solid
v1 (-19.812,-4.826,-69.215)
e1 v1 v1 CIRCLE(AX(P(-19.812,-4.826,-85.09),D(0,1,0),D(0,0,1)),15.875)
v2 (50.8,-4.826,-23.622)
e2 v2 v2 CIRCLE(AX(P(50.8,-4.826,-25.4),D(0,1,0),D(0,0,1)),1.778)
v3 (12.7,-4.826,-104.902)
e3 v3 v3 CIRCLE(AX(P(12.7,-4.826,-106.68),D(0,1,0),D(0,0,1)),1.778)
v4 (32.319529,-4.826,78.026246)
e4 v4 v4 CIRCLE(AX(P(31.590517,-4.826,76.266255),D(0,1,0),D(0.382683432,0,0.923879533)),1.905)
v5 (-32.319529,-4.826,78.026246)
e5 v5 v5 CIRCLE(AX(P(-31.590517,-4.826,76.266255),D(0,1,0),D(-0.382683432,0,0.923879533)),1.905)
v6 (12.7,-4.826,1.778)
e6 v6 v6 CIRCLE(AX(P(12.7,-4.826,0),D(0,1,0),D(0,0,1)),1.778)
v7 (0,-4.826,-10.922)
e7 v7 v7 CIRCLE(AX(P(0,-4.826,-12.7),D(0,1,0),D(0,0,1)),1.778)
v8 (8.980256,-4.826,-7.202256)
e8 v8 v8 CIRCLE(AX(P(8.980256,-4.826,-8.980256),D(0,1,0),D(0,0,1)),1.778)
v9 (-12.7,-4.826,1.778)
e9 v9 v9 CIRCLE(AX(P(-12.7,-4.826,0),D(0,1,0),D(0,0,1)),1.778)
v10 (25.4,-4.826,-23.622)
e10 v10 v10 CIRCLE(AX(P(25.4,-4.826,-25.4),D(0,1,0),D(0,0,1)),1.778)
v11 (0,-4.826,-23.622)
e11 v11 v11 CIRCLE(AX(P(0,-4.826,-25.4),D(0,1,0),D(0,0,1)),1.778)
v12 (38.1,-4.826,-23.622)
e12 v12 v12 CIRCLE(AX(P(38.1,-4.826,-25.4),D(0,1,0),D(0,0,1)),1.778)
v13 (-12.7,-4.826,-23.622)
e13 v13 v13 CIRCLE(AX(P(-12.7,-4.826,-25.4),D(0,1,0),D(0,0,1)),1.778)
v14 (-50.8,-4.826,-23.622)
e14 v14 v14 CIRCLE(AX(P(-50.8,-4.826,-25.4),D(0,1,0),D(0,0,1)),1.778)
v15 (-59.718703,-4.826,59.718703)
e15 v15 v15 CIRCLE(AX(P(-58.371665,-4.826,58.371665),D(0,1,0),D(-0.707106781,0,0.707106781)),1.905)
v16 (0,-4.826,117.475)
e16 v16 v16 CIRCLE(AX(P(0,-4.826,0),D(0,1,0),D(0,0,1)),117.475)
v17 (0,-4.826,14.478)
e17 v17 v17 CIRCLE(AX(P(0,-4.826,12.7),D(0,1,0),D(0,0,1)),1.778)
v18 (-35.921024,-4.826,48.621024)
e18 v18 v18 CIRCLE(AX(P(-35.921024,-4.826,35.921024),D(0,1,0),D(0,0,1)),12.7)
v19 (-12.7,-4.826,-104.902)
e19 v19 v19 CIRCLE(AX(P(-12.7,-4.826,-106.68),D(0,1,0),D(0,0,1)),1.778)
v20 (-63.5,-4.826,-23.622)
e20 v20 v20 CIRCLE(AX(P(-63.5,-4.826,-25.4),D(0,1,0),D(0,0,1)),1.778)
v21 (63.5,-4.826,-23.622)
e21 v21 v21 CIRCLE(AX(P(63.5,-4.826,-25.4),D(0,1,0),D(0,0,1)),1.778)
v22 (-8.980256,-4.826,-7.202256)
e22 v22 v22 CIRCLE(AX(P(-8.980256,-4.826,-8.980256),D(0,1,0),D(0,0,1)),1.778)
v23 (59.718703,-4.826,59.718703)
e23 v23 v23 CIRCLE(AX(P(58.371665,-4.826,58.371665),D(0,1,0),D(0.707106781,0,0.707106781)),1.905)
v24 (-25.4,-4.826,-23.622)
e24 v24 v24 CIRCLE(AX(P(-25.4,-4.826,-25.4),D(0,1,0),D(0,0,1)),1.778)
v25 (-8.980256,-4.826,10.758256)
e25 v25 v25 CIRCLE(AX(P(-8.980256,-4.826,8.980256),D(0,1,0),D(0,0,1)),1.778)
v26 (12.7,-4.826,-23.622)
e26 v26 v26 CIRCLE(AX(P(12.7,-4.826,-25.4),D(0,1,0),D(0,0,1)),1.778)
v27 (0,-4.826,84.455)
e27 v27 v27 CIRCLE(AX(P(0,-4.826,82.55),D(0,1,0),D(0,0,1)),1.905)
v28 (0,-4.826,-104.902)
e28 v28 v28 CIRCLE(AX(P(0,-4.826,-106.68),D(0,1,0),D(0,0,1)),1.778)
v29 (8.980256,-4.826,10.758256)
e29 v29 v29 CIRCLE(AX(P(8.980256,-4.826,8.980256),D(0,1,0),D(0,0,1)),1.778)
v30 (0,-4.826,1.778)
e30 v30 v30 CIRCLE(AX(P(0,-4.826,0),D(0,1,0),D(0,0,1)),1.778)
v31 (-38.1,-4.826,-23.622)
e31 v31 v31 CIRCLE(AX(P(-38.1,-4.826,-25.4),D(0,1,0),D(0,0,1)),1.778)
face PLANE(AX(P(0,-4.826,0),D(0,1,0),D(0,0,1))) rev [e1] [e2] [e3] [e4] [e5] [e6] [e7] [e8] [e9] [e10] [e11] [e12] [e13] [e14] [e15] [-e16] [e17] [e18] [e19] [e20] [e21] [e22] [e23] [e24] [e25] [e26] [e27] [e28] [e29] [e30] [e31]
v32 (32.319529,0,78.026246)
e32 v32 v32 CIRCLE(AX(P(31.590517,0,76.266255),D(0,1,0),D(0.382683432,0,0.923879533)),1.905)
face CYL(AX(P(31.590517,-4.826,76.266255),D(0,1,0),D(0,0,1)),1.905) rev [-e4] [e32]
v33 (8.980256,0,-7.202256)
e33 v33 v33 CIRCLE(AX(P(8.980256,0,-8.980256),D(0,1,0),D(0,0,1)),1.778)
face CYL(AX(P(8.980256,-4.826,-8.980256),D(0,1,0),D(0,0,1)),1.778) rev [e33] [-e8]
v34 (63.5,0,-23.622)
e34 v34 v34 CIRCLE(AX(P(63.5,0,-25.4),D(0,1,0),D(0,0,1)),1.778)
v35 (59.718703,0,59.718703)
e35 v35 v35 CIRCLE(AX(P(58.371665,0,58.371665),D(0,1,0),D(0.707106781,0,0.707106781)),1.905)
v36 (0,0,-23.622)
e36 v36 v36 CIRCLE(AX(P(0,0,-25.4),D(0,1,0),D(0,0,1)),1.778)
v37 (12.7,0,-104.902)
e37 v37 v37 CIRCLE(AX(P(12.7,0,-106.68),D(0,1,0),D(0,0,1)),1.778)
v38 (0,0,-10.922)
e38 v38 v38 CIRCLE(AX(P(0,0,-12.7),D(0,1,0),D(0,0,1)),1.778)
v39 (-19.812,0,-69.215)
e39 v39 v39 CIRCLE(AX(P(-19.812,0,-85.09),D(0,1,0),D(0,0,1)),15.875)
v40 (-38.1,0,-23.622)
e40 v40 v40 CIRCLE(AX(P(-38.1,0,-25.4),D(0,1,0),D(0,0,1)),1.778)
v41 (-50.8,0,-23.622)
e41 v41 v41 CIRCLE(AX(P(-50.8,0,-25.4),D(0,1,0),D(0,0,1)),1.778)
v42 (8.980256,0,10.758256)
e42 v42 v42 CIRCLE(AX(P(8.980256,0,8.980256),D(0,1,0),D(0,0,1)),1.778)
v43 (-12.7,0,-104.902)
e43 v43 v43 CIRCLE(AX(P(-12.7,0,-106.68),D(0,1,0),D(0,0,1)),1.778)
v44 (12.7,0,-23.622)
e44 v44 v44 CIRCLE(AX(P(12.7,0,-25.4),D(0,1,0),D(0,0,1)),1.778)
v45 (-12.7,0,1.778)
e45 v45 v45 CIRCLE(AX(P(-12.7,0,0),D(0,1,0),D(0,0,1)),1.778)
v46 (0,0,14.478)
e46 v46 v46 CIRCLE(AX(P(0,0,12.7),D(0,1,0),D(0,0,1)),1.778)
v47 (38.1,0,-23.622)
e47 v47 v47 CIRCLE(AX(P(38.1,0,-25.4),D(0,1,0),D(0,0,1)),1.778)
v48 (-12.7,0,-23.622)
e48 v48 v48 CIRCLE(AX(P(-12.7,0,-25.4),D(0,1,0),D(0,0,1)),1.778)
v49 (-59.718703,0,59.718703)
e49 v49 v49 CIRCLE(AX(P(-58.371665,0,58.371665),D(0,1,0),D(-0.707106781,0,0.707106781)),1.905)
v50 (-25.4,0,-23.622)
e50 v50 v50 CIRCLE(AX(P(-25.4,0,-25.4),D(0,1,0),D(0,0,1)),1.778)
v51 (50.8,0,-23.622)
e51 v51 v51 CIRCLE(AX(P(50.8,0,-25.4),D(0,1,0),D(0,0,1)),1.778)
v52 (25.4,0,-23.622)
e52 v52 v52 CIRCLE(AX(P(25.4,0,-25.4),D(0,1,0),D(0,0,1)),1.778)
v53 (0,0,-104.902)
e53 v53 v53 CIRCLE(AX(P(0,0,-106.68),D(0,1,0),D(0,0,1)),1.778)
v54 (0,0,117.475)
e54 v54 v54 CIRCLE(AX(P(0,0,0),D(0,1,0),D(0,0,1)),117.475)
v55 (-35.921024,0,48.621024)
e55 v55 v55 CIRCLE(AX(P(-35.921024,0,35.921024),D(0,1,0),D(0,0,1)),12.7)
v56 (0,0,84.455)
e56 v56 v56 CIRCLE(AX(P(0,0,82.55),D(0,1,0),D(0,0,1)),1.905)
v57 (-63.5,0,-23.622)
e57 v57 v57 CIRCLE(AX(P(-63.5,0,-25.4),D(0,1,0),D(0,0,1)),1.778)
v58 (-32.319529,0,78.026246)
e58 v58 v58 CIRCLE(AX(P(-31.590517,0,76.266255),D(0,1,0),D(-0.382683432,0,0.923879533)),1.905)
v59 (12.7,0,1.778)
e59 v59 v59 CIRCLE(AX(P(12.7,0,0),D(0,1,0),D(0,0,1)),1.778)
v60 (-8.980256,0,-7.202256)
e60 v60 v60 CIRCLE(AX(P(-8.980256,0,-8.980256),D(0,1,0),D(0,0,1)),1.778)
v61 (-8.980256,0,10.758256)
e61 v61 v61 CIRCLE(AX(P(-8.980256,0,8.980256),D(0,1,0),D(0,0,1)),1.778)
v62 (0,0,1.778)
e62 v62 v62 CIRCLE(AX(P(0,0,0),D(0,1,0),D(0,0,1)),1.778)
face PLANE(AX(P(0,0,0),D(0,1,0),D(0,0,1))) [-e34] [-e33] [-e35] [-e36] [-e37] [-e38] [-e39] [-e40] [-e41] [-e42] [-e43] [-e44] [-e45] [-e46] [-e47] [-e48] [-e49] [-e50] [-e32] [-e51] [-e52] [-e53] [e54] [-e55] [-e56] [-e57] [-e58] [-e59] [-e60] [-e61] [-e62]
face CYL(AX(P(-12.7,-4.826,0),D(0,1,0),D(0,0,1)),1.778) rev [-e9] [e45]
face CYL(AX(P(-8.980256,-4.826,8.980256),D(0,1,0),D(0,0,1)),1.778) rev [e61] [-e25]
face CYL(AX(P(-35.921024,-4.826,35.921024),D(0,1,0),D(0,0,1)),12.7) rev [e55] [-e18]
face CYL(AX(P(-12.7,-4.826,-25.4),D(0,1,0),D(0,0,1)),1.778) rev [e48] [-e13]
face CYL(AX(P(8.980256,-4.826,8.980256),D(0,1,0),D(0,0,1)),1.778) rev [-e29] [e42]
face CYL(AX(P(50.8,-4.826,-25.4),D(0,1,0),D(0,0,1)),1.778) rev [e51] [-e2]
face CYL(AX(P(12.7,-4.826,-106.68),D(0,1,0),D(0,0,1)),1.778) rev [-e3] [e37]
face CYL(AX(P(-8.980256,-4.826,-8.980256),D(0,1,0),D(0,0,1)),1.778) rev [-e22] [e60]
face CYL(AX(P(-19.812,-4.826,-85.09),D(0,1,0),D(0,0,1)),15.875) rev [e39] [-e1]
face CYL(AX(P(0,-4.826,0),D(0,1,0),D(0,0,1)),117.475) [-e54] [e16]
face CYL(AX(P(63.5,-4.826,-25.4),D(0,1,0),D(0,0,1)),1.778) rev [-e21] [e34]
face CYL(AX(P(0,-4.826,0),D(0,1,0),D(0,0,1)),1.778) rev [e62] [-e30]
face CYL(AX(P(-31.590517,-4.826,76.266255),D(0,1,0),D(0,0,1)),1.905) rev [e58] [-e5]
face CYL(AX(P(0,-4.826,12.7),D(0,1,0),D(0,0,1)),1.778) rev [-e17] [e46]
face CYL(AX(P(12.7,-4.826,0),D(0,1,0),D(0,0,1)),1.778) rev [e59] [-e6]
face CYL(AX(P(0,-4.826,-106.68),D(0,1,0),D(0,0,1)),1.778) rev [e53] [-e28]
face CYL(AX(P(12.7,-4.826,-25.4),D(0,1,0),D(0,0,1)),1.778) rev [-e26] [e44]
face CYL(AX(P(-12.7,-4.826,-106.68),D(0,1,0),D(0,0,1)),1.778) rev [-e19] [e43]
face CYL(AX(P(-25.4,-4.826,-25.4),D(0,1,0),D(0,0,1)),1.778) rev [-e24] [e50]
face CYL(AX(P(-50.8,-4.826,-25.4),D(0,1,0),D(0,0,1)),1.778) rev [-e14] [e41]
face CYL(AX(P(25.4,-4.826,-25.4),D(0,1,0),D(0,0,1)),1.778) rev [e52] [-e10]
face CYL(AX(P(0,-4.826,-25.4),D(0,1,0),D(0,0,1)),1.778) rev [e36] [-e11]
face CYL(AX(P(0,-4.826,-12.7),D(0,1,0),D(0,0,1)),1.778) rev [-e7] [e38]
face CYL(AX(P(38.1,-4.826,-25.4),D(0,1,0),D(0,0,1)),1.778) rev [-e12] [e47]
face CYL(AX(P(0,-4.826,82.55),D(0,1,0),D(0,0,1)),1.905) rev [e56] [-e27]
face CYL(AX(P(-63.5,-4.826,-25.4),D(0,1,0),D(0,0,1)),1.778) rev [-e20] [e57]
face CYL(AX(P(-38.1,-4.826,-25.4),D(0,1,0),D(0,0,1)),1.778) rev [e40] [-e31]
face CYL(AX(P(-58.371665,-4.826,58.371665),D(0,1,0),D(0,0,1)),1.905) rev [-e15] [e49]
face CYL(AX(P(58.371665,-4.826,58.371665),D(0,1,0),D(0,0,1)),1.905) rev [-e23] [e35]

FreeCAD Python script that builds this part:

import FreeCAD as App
import Part
import Sketcher
Q = App.Units.Quantity

doc = App.newDocument("Part")
body = doc.addObject("PartDesign::Body", "Body")

sketch1 = body.newObject("Sketcher::SketchObject", "Sketch")
sketch1.AttachmentSupport = (doc.getObject("XZ_Plane"), [""])
sketch1.MapMode = "FlatFace"
sketch1.addGeometry(Part.Circle(App.Vector(0, 0, 0), App.Vector(0, 0, 1), 117), False)
sketch1.addConstraint([
    Sketcher.Constraint("Coincident", 0, 3, -1, 1),
    Sketcher.Constraint("Diameter", 0, Q("9.25 in")),
])
pad1 = body.newObject("PartDesign::Pad", "Pad")
pad1.Profile = sketch1
pad1.Length = Q("0.19 in")

sketch2 = body.newObject("Sketcher::SketchObject", "Sketch001")
sketch2.AttachmentSupport = (doc.getObject("XZ_Plane"), [""])
sketch2.MapMode = "FlatFace"
sketch2.addGeometry(Part.Circle(App.Vector(0, 0, 0), App.Vector(0, 0, 1), 1.8), False)
sketch2.addConstraint([
    Sketcher.Constraint("Coincident", 0, 3, -1, 1),
    Sketcher.Constraint("Diameter", 0, Q("0.14 in")),
])
pocket1 = body.newObject("PartDesign::Pocket", "Pocket")
pocket1.Profile = sketch2
pocket1.Type = "ThroughAll"
pocket1.Reversed = True

sketch3 = body.newObject("Sketcher::SketchObject", "Sketch002")
sketch3.AttachmentSupport = (doc.getObject("XZ_Plane"), [""])
sketch3.MapMode = "FlatFace"
sketch3.addGeometry([
    Part.Circle(App.Vector(0, -25.4, 0), App.Vector(0, 0, 1), 1.8),
    Part.Circle(App.Vector(-12.7, -25.4, 0), App.Vector(0, 0, 1), 1.8),
    Part.Circle(App.Vector(-25.4, -25.4, 0), App.Vector(0, 0, 1), 1.8),
    Part.Circle(App.Vector(-38.1, -25.4, 0), App.Vector(0, 0, 1), 1.8),
    Part.Circle(App.Vector(12.7, -25.4, 0), App.Vector(0, 0, 1), 1.8),
    Part.Circle(App.Vector(25.4, -25.4, 0), App.Vector(0, 0, 1), 1.8),
    Part.Circle(App.Vector(38.1, -25.4, 0), App.Vector(0, 0, 1), 1.8),
    Part.Circle(App.Vector(-50.8, -25.4, 0), App.Vector(0, 0, 1), 1.8),
    Part.Circle(App.Vector(50.8, -25.4, 0), App.Vector(0, 0, 1), 1.8),
    Part.Circle(App.Vector(-63.5, -25.4, 0), App.Vector(0, 0, 1), 1.8),
    Part.Circle(App.Vector(63.5, -25.4, 0), App.Vector(0, 0, 1), 1.8),
    Part.Circle(App.Vector(0, -106.7, 0), App.Vector(0, 0, 1), 1.8),
    Part.Circle(App.Vector(-12.7, -106.7, 0), App.Vector(0, 0, 1), 1.8),
    Part.Circle(App.Vector(12.7, -106.7, 0), App.Vector(0, 0, 1), 1.8),
], False)
sketch3.addConstraint([
    Sketcher.Constraint("Equal", 0, 1),
    Sketcher.Constraint("Equal", 1, 2),
    Sketcher.Constraint("Equal", 2, 3),
    Sketcher.Constraint("Equal", 3, 4),
    Sketcher.Constraint("Equal", 4, 5),
    Sketcher.Constraint("Equal", 5, 6),
    Sketcher.Constraint("Equal", 6, 7),
    Sketcher.Constraint("Equal", 7, 8),
    Sketcher.Constraint("Equal", 8, 9),
    Sketcher.Constraint("Equal", 9, 10),
    Sketcher.Constraint("Equal", 10, 11),
    Sketcher.Constraint("Equal", 11, 12),
    Sketcher.Constraint("Equal", 12, 13),
    Sketcher.Constraint("Symmetric", 1, 3, 4, 3, -2),
    Sketcher.Constraint("Symmetric", 2, 3, 5, 3, -2),
    Sketcher.Constraint("Symmetric", 3, 3, 6, 3, -2),
    Sketcher.Constraint("Symmetric", 7, 3, 8, 3, -2),
    Sketcher.Constraint("Symmetric", 9, 3, 10, 3, -2),
    Sketcher.Constraint("Symmetric", 12, 3, 13, 3, -2),
    Sketcher.Constraint("PointOnObject", 0, 3, -2),
    Sketcher.Constraint("PointOnObject", 11, 3, -2),
    Sketcher.Constraint("Horizontal", 0, 3, 1, 3),
    Sketcher.Constraint("Horizontal", 1, 3, 2, 3),
    Sketcher.Constraint("Horizontal", 2, 3, 3, 3),
    Sketcher.Constraint("Horizontal", 6, 3, 7, 3),
    Sketcher.Constraint("Horizontal", 8, 3, 9, 3),
    Sketcher.Constraint("Horizontal", 11, 3, 12, 3),
    Sketcher.Constraint("Vertical", 1, 3, 12, 3),
    Sketcher.Constraint("Diameter", 0, Q("0.14 in")),
    Sketcher.Constraint("DistanceY", 0, 3, -1, 1, Q("1 in")),
    Sketcher.Constraint("DistanceX", 2, 3, -1, 1, Q("1 in")),
    Sketcher.Constraint("DistanceX", 7, 3, -1, 1, Q("2 in")),
    Sketcher.Constraint("DistanceX", 3, 3, 1, 3, Q("1 in")),
    Sketcher.Constraint("DistanceX", 1, 3, 4, 3, Q("1 in")),
    Sketcher.Constraint("DistanceX", 9, 3, 3, 3, Q("1 in")),
    Sketcher.Constraint("DistanceY", 11, 3, -1, 1, Q("4.2 in")),
])
pocket2 = body.newObject("PartDesign::Pocket", "Pocket001")
pocket2.Profile = sketch3
pocket2.Type = "ThroughAll"
pocket2.Reversed = True

sketch4 = body.newObject("Sketcher::SketchObject", "Sketch003")
sketch4.AttachmentSupport = (doc.getObject("XZ_Plane"), [""])
sketch4.MapMode = "FlatFace"
sketch4.addGeometry([
    Part.Circle(App.Vector(0, -12.7, 0), App.Vector(0, 0, 1), 1.8),
    Part.Circle(App.Vector(12.7, 0, 0), App.Vector(0, 0, 1), 1.8),
    Part.Circle(App.Vector(0, 12.7, 0), App.Vector(0, 0, 1), 1.8),
    Part.Circle(App.Vector(-12.7, 0, 0), App.Vector(0, 0, 1), 1.8),
    Part.Circle(App.Vector(-9, -9, 0), App.Vector(0, 0, 1), 1.8),
    Part.Circle(App.Vector(9, -9, 0), App.Vector(0, 0, 1), 1.8),
    Part.Circle(App.Vector(9, 9, 0), App.Vector(0, 0, 1), 1.8),
    Part.Circle(App.Vector(-9, 9, 0), App.Vector(0, 0, 1), 1.8),
], False)
sketch4.addConstraint([
    Sketcher.Constraint("Equal", 0, 1),
    Sketcher.Constraint("Equal", 1, 2),
    Sketcher.Constraint("Equal", 2, 3),
    Sketcher.Constraint("Equal", 3, 4),
    Sketcher.Constraint("Equal", 4, 5),
    Sketcher.Constraint("Equal", 5, 6),
    Sketcher.Constraint("Equal", 6, 7),
    Sketcher.Constraint("Symmetric", 0, 3, 2, 3, -1, 1),
    Sketcher.Constraint("Symmetric", 1, 3, 3, 3, -1, 1),
    Sketcher.Constraint("Symmetric", 4, 3, 6, 3, -1, 1),
    Sketcher.Constraint("Symmetric", 5, 3, 7, 3, -1, 1),
    Sketcher.Constraint("Symmetric", 4, 3, 5, 3, -2),
    Sketcher.Constraint("PointOnObject", 0, 3, -2),
    Sketcher.Constraint("PointOnObject", 1, 3, -1),
    Sketcher.Constraint("Diameter", 0, Q("0.14 in")),
    Sketcher.Constraint("DistanceY", 0, 3, 2, 3, Q("1 in")),
    Sketcher.Constraint("DistanceX", 3, 3, 1, 3, Q("1 in")),
    Sketcher.Constraint("DistanceX", 4, 3, -1, 1, Q("8.980256 mm")),
    Sketcher.Constraint("DistanceY", 4, 3, -1, 1, Q("8.980256 mm")),
])
pocket3 = body.newObject("PartDesign::Pocket", "Pocket002")
pocket3.Profile = sketch4
pocket3.Type = "ThroughAll"
pocket3.Reversed = True

sketch5 = body.newObject("Sketcher::SketchObject", "Sketch004")
sketch5.AttachmentSupport = (doc.getObject("XZ_Plane"), [""])
sketch5.MapMode = "FlatFace"
sketch5.addGeometry(Part.Circle(App.Vector(-36, 36, 0), App.Vector(0, 0, 1), 13), False)
sketch5.addConstraint([
    Sketcher.Constraint("Diameter", 0, Q("1 in")),
    Sketcher.Constraint("DistanceX", 0, 3, -1, 1, Q("35.921024 mm")),
    Sketcher.Constraint("DistanceY", -1, 1, 0, 3, Q("35.921024 mm")),
])
pocket4 = body.newObject("PartDesign::Pocket", "Pocket003")
pocket4.Profile = sketch5
pocket4.Type = "ThroughAll"
pocket4.Reversed = True

sketch6 = body.newObject("Sketcher::SketchObject", "Sketch005")
sketch6.AttachmentSupport = (doc.getObject("XZ_Plane"), [""])
sketch6.MapMode = "FlatFace"
sketch6.addGeometry(Part.Circle(App.Vector(0, 82.5, 0), App.Vector(0, 0, 1), 1.9), False)
sketch6.addConstraint([
    Sketcher.Constraint("PointOnObject", 0, 3, -2),
    Sketcher.Constraint("Diameter", 0, Q("0.15 in")),
    Sketcher.Constraint("DistanceY", -1, 1, 0, 3, Q("3.25 in")),
])
pocket5 = body.newObject("PartDesign::Pocket", "Pocket004")
pocket5.Profile = sketch6
pocket5.Type = "ThroughAll"
pocket5.Reversed = True
doc.recompute()

polarpattern = body.newObject("PartDesign::PolarPattern", "PolarPattern")
polarpattern.Originals = [pocket5]
polarpattern.Axis = (doc.getObject("Y_Axis"), [""])
polarpattern.Angle = 45
polarpattern.Occurrences = 3
body.Tip = polarpattern
doc.recompute()

polarpattern2 = body.newObject("PartDesign::PolarPattern", "PolarPattern001")
polarpattern2.Originals = [pocket5]
polarpattern2.Axis = (doc.getObject("Y_Axis"), [""])
polarpattern2.Angle = 45
polarpattern2.Occurrences = 3
polarpattern2.Reversed = True
body.Tip = polarpattern2

sketch7 = body.newObject("Sketcher::SketchObject", "Sketch006")
sketch7.AttachmentSupport = (doc.getObject("XZ_Plane"), [""])
sketch7.MapMode = "FlatFace"
sketch7.addGeometry(Part.Circle(App.Vector(-20, -85, 0), App.Vector(0, 0, 1), 16), False)
sketch7.addConstraint([
    Sketcher.Constraint("Diameter", 0, Q("1.25 in")),
    Sketcher.Constraint("DistanceX", 0, 3, -1, 1, Q("0.78 in")),
    Sketcher.Constraint("DistanceY", 0, 3, -1, 1, Q("3.35 in")),
])
pocket6 = body.newObject("PartDesign::Pocket", "Pocket005")
pocket6.Profile = sketch7
pocket6.Type = "ThroughAll"
pocket6.Reversed = True

doc.recompute()
